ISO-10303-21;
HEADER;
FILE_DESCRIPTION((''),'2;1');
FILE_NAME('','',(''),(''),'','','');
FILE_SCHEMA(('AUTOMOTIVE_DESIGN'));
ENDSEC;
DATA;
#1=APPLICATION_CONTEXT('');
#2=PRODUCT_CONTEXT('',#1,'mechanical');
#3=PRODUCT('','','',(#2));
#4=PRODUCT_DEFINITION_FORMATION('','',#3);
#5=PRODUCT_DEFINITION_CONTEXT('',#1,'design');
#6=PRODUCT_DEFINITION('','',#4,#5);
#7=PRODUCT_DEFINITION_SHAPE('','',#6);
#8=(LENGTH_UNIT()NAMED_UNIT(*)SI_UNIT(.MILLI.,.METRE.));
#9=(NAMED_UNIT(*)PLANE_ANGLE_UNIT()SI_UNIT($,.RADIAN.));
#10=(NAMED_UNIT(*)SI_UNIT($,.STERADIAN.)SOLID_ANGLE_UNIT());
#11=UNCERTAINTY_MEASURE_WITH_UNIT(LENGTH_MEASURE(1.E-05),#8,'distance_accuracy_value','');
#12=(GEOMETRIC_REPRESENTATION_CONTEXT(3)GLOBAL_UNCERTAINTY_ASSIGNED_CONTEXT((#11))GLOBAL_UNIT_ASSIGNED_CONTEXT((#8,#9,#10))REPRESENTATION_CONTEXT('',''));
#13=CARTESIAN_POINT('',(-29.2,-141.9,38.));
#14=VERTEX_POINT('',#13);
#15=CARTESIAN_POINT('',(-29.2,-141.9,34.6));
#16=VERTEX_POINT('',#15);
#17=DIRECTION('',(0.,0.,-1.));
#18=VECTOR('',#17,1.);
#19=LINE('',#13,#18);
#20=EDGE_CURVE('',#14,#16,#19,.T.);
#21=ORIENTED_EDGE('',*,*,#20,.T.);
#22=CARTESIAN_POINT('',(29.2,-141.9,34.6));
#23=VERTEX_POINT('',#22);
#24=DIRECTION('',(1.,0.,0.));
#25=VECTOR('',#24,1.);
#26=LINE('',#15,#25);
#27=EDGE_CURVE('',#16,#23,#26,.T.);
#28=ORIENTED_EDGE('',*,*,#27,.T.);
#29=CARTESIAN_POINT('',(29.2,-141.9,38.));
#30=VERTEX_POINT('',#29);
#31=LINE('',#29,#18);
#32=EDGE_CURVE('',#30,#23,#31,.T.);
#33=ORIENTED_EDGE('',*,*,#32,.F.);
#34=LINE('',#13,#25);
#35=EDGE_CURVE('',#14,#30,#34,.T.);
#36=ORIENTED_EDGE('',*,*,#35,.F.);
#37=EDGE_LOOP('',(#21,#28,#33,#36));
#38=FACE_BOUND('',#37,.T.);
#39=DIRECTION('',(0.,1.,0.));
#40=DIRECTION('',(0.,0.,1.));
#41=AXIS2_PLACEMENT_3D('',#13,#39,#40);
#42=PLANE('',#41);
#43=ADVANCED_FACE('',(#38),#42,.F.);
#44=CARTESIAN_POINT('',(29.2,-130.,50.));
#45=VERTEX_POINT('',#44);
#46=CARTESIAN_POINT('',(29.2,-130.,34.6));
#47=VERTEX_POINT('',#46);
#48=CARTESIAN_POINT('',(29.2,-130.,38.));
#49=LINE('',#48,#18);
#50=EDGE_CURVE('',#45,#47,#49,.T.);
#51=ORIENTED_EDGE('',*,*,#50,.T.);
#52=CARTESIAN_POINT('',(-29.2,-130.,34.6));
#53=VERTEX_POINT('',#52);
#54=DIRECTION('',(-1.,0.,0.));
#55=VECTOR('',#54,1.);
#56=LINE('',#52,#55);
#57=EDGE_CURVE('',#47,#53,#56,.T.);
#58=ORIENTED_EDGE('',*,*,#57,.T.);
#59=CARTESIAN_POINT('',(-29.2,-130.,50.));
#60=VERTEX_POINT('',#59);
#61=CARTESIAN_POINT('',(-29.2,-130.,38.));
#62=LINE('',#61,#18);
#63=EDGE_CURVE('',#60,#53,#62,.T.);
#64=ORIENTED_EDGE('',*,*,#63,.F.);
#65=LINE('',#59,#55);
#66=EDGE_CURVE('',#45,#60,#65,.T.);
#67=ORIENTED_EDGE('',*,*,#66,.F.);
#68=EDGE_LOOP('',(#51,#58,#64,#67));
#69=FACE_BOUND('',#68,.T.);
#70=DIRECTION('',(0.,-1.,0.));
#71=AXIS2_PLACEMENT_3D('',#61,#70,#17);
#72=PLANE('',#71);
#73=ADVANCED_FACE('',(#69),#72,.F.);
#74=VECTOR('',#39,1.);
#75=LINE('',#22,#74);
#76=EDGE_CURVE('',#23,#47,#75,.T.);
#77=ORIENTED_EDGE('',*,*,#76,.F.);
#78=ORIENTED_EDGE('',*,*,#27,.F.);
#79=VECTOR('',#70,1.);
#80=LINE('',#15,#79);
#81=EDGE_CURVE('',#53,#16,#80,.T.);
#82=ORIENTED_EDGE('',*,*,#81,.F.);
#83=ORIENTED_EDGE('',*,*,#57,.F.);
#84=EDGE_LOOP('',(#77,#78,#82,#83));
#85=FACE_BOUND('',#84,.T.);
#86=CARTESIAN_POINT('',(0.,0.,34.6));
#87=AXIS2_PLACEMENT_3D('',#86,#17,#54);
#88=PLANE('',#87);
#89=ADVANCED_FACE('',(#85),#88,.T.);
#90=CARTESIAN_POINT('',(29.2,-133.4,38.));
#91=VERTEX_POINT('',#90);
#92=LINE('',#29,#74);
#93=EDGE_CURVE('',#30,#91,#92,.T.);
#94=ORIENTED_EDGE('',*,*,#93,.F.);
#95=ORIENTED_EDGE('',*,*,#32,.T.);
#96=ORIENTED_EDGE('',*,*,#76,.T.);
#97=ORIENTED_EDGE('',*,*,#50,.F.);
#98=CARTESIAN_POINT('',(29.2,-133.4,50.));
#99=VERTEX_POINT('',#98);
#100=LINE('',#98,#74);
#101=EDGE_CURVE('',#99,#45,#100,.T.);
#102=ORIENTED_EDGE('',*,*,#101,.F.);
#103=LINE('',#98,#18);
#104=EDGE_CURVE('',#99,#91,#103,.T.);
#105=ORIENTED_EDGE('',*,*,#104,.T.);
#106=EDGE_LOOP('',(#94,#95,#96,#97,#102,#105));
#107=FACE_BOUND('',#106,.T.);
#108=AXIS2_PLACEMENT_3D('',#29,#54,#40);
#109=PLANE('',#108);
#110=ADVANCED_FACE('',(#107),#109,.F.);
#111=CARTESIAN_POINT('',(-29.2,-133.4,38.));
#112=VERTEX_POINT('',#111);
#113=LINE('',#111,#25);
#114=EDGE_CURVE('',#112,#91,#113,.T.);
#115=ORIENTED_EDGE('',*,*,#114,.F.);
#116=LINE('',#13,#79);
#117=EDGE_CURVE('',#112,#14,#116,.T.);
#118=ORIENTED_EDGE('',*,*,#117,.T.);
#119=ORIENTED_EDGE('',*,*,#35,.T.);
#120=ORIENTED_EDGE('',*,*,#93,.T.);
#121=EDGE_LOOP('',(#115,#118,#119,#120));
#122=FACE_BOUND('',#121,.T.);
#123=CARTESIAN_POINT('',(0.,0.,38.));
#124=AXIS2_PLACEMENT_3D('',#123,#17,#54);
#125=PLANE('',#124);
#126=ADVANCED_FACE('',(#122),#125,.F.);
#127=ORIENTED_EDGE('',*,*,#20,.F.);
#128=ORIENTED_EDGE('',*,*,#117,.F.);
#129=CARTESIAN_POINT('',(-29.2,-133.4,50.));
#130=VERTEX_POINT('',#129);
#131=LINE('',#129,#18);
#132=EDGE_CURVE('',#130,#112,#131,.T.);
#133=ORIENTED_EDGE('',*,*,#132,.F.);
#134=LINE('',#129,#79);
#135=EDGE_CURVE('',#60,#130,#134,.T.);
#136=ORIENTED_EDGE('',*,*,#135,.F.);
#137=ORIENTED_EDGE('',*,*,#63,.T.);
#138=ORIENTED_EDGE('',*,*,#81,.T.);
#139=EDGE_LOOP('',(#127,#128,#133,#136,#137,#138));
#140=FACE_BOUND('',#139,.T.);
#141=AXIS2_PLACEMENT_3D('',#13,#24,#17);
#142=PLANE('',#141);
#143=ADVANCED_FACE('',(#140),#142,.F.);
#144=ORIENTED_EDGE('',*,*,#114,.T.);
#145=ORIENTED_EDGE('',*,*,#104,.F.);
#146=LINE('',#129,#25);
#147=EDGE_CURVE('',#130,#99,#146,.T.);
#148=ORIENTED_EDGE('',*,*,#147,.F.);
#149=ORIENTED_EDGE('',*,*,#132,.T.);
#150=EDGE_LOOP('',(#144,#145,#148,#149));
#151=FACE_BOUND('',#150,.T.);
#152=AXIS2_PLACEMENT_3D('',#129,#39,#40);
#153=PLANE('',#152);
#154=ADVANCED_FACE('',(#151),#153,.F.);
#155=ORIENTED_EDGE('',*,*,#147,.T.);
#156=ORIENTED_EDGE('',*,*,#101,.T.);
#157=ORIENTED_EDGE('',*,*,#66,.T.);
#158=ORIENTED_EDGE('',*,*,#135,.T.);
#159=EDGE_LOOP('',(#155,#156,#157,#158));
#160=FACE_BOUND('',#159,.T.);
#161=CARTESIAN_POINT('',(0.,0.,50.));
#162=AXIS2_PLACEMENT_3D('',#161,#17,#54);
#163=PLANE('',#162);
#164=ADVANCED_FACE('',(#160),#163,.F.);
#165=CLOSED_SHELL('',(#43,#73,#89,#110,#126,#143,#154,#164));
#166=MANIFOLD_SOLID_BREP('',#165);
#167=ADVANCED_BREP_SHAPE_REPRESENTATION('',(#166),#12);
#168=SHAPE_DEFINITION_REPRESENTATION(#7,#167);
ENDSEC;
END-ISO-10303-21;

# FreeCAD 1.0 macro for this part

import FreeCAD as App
import Part
import Sketcher
from FreeCAD import Vector
Q = App.Units.Quantity

doc = App.newDocument("Part")
body = doc.addObject("PartDesign::Body", "Body")

# Sketch on XY plane
sketch1 = body.newObject("Sketcher::SketchObject", "Sketch")
sketch1.AttachmentSupport = (doc.getObject("XY_Plane"), [""])
sketch1.MapMode = "FlatFace"
sketch1.AttachmentOffset = App.Placement(Vector(0, 0, 34.6), App.Rotation())
sketch1.addGeometry([
    Part.LineSegment(Vector(-29.2, -130, 0), Vector(-29.2, -141.9, 0)),
    Part.LineSegment(Vector(-29.2, -141.9, 0), Vector(29.2, -141.9, 0)),
    Part.LineSegment(Vector(29.2, -141.9, 0), Vector(29.2, -130, 0)),
    Part.LineSegment(Vector(29.2, -130, 0), Vector(-29.2, -130, 0)),
], False)
sketch1.addConstraint([
    Sketcher.Constraint("Coincident", 0, 2, 1, 1),
    Sketcher.Constraint("Coincident", 1, 2, 2, 1),
    Sketcher.Constraint("Coincident", 2, 2, 3, 1),
    Sketcher.Constraint("Coincident", 3, 2, 0, 1),
    Sketcher.Constraint("Vertical", 0),
    Sketcher.Constraint("Horizontal", 1),
    Sketcher.Constraint("Vertical", 2),
    Sketcher.Constraint("Horizontal", 3),
    Sketcher.Constraint("DistanceX", 1, 1, 1, 2, Q("58.4 mm")),
    Sketcher.Constraint("DistanceY", 0, 2, 0, 1, Q("11.9 mm")),
    Sketcher.Constraint("DistanceY", 2, 2, -1, 1, Q("130 mm")),
    Sketcher.Constraint("DistanceX", 0, 2, -1, 1, Q("29.2 mm")),
])
pad1 = body.newObject("PartDesign::Pad", "Pad")
pad1.Profile = sketch1
pad1.Length = 3.4

# Sketch on XY plane
sketch2 = body.newObject("Sketcher::SketchObject", "Sketch001")
sketch2.AttachmentSupport = (doc.getObject("XY_Plane"), [""])
sketch2.MapMode = "FlatFace"
sketch2.AttachmentOffset = App.Placement(Vector(0, 0, 38), App.Rotation())
sketch2.addGeometry([
    Part.LineSegment(Vector(-29.2, -130, 0), Vector(-29.2, -133.4, 0)),
    Part.LineSegment(Vector(-29.2, -133.4, 0), Vector(29.2, -133.4, 0)),
    Part.LineSegment(Vector(29.2, -133.4, 0), Vector(29.2, -130, 0)),
    Part.LineSegment(Vector(29.2, -130, 0), Vector(-29.2, -130, 0)),
], False)
sketch2.addConstraint([
    Sketcher.Constraint("Coincident", 0, 2, 1, 1),
    Sketcher.Constraint("Coincident", 1, 2, 2, 1),
    Sketcher.Constraint("Coincident", 2, 2, 3, 1),
    Sketcher.Constraint("Coincident", 3, 2, 0, 1),
    Sketcher.Constraint("Vertical", 0),
    Sketcher.Constraint("Horizontal", 1),
    Sketcher.Constraint("Vertical", 2),
    Sketcher.Constraint("Horizontal", 3),
    Sketcher.Constraint("DistanceX", 1, 1, 1, 2, Q("58.4 mm")),
    Sketcher.Constraint("DistanceY", 0, 2, 0, 1, Q("3.4 mm")),
    Sketcher.Constraint("DistanceY", 2, 2, -1, 1, Q("130 mm")),
    Sketcher.Constraint("DistanceX", 0, 2, -1, 1, Q("29.2 mm")),
])
pad2 = body.newObject("PartDesign::Pad", "Pad001")
pad2.Profile = sketch2
pad2.Length = 12

doc.recompute()
